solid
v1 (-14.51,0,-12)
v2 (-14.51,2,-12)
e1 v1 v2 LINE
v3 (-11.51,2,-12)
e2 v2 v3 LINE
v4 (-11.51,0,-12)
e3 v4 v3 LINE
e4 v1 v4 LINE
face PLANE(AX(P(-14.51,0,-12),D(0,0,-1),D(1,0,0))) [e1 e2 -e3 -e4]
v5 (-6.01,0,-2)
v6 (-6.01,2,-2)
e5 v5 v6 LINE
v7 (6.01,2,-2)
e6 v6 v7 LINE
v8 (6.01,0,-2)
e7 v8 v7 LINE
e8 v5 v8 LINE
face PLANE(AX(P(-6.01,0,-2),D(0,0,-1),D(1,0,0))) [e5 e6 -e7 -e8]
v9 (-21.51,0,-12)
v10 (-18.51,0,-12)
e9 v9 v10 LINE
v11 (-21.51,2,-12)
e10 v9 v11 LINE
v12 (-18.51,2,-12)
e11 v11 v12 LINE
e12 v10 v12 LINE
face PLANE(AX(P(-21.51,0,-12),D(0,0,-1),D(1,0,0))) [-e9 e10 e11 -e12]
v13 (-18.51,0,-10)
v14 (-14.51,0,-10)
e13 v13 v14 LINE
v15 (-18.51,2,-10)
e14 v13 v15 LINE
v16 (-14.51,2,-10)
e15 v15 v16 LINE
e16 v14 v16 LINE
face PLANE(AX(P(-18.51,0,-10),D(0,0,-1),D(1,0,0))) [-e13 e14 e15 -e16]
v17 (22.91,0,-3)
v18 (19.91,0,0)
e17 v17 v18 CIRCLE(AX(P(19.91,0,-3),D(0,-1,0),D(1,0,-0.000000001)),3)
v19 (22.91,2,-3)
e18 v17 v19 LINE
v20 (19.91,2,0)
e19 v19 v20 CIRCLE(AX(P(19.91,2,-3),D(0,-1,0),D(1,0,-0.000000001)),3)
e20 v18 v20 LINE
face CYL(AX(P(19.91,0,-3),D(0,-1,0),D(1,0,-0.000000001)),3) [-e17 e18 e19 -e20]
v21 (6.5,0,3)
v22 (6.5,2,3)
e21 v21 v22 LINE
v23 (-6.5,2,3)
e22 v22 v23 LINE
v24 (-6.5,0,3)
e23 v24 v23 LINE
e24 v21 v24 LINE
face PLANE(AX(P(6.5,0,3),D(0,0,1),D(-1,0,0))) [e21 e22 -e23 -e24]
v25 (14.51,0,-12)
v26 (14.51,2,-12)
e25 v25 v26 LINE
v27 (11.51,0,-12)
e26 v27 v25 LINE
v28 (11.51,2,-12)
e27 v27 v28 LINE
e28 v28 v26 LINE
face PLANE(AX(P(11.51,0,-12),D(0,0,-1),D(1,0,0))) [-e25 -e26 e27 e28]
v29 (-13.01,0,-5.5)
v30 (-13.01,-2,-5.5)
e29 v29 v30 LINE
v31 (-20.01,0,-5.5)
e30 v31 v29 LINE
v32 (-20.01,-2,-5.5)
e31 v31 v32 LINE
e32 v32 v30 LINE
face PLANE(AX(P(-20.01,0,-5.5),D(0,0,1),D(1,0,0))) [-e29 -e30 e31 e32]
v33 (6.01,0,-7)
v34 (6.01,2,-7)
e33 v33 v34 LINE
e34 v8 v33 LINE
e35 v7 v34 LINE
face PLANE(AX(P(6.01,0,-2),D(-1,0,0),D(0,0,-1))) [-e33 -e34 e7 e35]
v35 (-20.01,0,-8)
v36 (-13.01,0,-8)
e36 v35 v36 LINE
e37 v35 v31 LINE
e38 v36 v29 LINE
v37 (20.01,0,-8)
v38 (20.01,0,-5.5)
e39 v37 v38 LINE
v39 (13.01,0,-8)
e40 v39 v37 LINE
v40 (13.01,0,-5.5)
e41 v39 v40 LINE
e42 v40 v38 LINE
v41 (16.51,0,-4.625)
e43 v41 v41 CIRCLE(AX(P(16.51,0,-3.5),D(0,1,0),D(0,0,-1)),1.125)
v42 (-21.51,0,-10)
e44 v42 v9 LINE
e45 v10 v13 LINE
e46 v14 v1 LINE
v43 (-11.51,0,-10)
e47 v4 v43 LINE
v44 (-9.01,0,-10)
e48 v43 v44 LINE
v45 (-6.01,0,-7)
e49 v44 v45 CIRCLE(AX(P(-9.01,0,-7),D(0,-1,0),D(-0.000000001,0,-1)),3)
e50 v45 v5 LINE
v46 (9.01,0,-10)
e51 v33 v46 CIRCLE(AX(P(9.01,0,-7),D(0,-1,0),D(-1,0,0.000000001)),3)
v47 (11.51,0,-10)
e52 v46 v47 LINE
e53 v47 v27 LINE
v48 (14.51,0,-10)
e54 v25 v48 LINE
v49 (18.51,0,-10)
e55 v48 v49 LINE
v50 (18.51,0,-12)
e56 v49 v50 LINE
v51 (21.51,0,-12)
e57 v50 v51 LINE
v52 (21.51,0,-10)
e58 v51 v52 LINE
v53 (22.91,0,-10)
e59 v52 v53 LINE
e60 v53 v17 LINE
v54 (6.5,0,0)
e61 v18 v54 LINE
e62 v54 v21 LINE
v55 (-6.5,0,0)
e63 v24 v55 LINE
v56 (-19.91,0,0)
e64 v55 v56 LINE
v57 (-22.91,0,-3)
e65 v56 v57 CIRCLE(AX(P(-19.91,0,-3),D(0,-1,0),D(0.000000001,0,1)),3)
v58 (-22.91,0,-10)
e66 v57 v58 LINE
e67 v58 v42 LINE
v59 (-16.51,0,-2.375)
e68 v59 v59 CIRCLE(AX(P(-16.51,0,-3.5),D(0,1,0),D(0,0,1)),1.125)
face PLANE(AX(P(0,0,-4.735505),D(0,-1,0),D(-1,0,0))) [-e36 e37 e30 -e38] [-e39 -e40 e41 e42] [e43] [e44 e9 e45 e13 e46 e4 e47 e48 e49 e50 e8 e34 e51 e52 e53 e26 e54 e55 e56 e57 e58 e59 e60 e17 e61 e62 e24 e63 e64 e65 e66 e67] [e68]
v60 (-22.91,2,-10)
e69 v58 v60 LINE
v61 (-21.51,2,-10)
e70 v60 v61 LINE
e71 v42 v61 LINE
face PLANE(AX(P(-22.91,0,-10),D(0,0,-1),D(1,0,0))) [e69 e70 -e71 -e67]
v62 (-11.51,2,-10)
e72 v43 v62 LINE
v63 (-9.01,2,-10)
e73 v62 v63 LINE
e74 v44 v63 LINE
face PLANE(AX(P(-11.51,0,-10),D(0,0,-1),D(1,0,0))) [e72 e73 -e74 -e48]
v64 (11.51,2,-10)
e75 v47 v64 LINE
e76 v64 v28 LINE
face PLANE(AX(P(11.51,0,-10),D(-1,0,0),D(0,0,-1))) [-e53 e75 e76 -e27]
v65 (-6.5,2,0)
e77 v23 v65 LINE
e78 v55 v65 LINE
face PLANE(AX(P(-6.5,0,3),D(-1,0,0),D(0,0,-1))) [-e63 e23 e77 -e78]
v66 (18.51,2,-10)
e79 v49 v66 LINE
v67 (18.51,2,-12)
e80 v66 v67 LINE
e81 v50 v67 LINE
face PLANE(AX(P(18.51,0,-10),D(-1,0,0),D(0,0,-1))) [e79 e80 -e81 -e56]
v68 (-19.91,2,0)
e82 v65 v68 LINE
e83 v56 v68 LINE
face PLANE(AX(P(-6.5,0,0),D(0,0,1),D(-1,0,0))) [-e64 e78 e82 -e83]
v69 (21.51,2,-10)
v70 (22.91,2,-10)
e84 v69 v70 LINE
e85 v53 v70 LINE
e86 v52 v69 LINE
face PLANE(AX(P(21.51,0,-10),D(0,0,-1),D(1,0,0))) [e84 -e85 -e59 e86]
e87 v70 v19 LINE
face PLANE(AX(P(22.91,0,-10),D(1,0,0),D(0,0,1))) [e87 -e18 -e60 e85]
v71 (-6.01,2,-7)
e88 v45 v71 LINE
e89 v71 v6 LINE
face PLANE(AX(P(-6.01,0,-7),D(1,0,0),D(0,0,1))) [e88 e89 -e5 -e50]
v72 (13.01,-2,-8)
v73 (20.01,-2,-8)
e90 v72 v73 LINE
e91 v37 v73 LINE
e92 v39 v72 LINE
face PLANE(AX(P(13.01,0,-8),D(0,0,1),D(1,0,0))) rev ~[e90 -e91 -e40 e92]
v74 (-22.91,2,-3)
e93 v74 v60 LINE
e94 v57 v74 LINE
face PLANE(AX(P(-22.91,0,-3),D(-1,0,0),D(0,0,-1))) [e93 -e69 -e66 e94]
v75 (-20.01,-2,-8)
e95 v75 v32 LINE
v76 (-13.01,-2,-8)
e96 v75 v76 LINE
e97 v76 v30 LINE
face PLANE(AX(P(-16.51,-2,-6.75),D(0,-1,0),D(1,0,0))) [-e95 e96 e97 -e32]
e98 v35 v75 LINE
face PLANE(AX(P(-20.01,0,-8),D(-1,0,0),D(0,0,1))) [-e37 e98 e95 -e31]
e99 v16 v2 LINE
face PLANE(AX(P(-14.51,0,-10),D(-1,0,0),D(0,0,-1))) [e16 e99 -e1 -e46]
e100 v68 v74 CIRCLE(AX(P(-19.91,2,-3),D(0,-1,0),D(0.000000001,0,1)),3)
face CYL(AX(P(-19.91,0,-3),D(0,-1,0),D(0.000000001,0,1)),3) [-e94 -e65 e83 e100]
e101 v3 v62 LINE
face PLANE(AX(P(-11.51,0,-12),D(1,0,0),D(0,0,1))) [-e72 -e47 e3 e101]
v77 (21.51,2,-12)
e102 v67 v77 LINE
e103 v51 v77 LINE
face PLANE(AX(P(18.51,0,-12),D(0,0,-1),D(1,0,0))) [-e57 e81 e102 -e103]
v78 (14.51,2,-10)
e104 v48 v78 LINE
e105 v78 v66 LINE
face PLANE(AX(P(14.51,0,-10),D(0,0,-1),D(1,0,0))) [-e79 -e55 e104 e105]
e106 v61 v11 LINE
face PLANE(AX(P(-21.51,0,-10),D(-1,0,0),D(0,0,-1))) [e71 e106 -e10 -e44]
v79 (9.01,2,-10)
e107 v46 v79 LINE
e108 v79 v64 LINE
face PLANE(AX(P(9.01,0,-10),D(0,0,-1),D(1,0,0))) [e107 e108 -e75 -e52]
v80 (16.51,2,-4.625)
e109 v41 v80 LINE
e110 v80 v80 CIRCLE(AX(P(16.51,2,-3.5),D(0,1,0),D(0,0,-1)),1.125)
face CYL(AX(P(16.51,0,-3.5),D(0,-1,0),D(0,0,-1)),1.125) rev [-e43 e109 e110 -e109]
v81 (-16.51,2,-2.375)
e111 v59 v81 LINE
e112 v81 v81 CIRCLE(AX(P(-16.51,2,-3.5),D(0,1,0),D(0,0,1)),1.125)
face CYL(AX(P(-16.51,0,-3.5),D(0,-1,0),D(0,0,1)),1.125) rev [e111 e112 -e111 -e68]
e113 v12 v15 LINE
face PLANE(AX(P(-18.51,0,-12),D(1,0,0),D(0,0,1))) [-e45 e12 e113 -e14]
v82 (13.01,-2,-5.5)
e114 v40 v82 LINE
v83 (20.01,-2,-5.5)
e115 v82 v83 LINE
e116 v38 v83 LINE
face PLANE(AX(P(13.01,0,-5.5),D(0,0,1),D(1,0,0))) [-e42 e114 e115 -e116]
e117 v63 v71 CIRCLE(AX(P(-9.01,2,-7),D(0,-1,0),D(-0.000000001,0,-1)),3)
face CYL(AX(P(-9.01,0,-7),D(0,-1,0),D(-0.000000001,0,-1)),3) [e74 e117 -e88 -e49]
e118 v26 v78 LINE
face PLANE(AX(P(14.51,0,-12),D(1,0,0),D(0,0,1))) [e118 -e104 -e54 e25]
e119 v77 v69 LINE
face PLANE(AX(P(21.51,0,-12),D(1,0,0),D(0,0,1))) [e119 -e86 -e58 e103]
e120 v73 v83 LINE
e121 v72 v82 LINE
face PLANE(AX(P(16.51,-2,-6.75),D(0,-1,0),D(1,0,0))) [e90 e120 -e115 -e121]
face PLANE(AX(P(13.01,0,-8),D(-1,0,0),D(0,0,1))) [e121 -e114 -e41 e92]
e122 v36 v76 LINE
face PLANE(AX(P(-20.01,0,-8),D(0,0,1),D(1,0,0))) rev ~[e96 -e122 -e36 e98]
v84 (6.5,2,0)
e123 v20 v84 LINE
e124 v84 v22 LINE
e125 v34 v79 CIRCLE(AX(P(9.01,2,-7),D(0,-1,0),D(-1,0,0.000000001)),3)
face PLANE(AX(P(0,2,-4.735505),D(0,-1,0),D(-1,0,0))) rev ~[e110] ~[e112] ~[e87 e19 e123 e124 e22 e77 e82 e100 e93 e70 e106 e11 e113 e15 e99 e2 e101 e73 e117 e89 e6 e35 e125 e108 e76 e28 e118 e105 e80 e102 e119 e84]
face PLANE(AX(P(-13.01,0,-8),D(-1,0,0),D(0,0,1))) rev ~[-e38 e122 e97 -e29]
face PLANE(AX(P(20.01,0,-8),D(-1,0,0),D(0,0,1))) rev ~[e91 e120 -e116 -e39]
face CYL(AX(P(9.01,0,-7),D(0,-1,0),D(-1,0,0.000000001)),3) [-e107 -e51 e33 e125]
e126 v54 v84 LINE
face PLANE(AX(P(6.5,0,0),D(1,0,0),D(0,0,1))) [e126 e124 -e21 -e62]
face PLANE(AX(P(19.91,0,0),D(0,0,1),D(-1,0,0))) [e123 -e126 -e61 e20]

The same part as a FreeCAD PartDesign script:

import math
import FreeCAD as App
import Part
import Sketcher
from FreeCAD import Vector


def add_polygon(sketch, points):
    """Adds a closed chain of lines whose ends are joined by coincident constraints."""
    first, n = sketch.GeometryCount, len(points)
    for a, b in zip(points, points[1:] + points[:1]):
        sketch.addGeometry(Part.LineSegment(App.Vector(*a, 0), App.Vector(*b, 0)), False)
    for i in range(n):
        sketch.addConstraint(Sketcher.Constraint("Coincident", first + i, 2, first + (i + 1) % n, 1))

doc = App.newDocument("Part")
params = doc.addObject("Spreadsheet::Sheet", "Params")
for row, (alias, value) in enumerate([
    ("sketch1_radius", "3 mm"),
    ("sketch1_diameter", "2.25 mm"),
    ("sketch1_width", "3 mm"),
    ("sketch1_width2", "4 mm"),
    ("sketch1_width3", "13 mm"),
    ("pad1_length", "2 mm"),
    ("sketch2_width", "7 mm"),
    ("sketch2_height", "2.5 mm"),
    ("pad2_length", "2 mm"),
], start=1):
    params.set(f"A{row}", alias)
    params.set(f"B{row}", "=" + value)
    params.setAlias(f"B{row}", alias)

body = doc.addObject("PartDesign::Body", "Body")

# Sketch on XZ plane
sketch1 = body.newObject("Sketcher::SketchObject", "Sketch")
sketch1.AttachmentSupport = (doc.getObject("XZ_Plane"), [""])
sketch1.MapMode = "FlatFace"
sketch1.addGeometry([
    Part.LineSegment(Vector(6.5, 0, 0), Vector(19.91, 0, 0)),  # 0
    Part.ArcOfCircle(Part.Circle(Vector(19.91, -3, 0), Vector(0, 0, 1), 3), math.radians(0), math.radians(90)),  # 1
    Part.LineSegment(Vector(22.91, -3, 0), Vector(22.91, -10, 0)),  # 2
    Part.LineSegment(Vector(22.91, -10, 0), Vector(21.51, -10, 0)),  # 3
    Part.LineSegment(Vector(21.51, -10, 0), Vector(21.51, -12, 0)),  # 4
    Part.LineSegment(Vector(21.51, -12, 0), Vector(18.51, -12, 0)),  # 5
    Part.LineSegment(Vector(18.51, -12, 0), Vector(18.51, -10, 0)),  # 6
    Part.LineSegment(Vector(18.51, -10, 0), Vector(14.51, -10, 0)),  # 7
    Part.LineSegment(Vector(14.51, -10, 0), Vector(14.51, -12, 0)),  # 8
    Part.LineSegment(Vector(14.51, -12, 0), Vector(11.51, -12, 0)),  # 9
    Part.LineSegment(Vector(11.51, -12, 0), Vector(11.51, -10, 0)),  # 10
    Part.LineSegment(Vector(11.51, -10, 0), Vector(9.01, -10, 0)),  # 11
    Part.ArcOfCircle(Part.Circle(Vector(9.01, -7, 0), Vector(0, 0, 1), 3), math.radians(180), math.radians(270)),  # 12
    Part.LineSegment(Vector(6.01, -7, 0), Vector(6.01, -2, 0)),  # 13
    Part.LineSegment(Vector(6.01, -2, 0), Vector(-6.01, -2, 0)),  # 14
    Part.LineSegment(Vector(-6.01, -2, 0), Vector(-6.01, -7, 0)),  # 15
    Part.ArcOfCircle(Part.Circle(Vector(-9.01, -7, 0), Vector(0, 0, 1), 3), math.radians(-90), math.radians(0)),  # 16
    Part.LineSegment(Vector(-9.01, -10, 0), Vector(-11.51, -10, 0)),  # 17
    Part.LineSegment(Vector(-11.51, -10, 0), Vector(-11.51, -12, 0)),  # 18
    Part.LineSegment(Vector(-11.51, -12, 0), Vector(-14.51, -12, 0)),  # 19
    Part.LineSegment(Vector(-14.51, -12, 0), Vector(-14.51, -10, 0)),  # 20
    Part.LineSegment(Vector(-14.51, -10, 0), Vector(-18.51, -10, 0)),  # 21
    Part.LineSegment(Vector(-18.51, -10, 0), Vector(-18.51, -12, 0)),  # 22
    Part.LineSegment(Vector(-18.51, -12, 0), Vector(-21.51, -12, 0)),  # 23
    Part.LineSegment(Vector(-21.51, -12, 0), Vector(-21.51, -10, 0)),  # 24
    Part.LineSegment(Vector(-21.51, -10, 0), Vector(-22.91, -10, 0)),  # 25
    Part.LineSegment(Vector(-22.91, -10, 0), Vector(-22.91, -3, 0)),  # 26
    Part.ArcOfCircle(Part.Circle(Vector(-19.91, -3, 0), Vector(0, 0, 1), 3), math.radians(90), math.radians(180)),  # 27
    Part.LineSegment(Vector(-19.91, 0, 0), Vector(-6.5, 0, 0)),  # 28
    Part.LineSegment(Vector(-6.5, 0, 0), Vector(-6.5, 3, 0)),  # 29
    Part.LineSegment(Vector(-6.5, 3, 0), Vector(6.5, 3, 0)),  # 30
    Part.LineSegment(Vector(6.5, 3, 0), Vector(6.5, 0, 0)),  # 31
    Part.Circle(Vector(16.51, -3.5, 0), Vector(0, 0, 1), 1.125),  # 32
    Part.Circle(Vector(-16.51, -3.5, 0), Vector(0, 0, 1), 1.125),  # 33
], False)
sketch1.addConstraint([
    Sketcher.Constraint("Tangent", 0, 2, 1, 2),
    Sketcher.Constraint("Tangent", 1, 1, 2, 1),
    Sketcher.Constraint("Coincident", 2, 2, 3, 1),
    Sketcher.Constraint("Coincident", 3, 2, 4, 1),
    Sketcher.Constraint("Coincident", 4, 2, 5, 1),
    Sketcher.Constraint("Coincident", 5, 2, 6, 1),
    Sketcher.Constraint("Coincident", 6, 2, 7, 1),
    Sketcher.Constraint("Coincident", 7, 2, 8, 1),
    Sketcher.Constraint("Coincident", 8, 2, 9, 1),
    Sketcher.Constraint("Coincident", 9, 2, 10, 1),
    Sketcher.Constraint("Coincident", 10, 2, 11, 1),
    Sketcher.Constraint("Tangent", 11, 2, 12, 2),
    Sketcher.Constraint("Tangent", 12, 1, 13, 1),
    Sketcher.Constraint("Coincident", 13, 2, 14, 1),
    Sketcher.Constraint("Coincident", 14, 2, 15, 1),
    Sketcher.Constraint("Tangent", 15, 2, 16, 2),
    Sketcher.Constraint("Tangent", 16, 1, 17, 1),
    Sketcher.Constraint("Coincident", 17, 2, 18, 1),
    Sketcher.Constraint("Coincident", 18, 2, 19, 1),
    Sketcher.Constraint("Coincident", 19, 2, 20, 1),
    Sketcher.Constraint("Coincident", 20, 2, 21, 1),
    Sketcher.Constraint("Coincident", 21, 2, 22, 1),
    Sketcher.Constraint("Coincident", 22, 2, 23, 1),
    Sketcher.Constraint("Coincident", 23, 2, 24, 1),
    Sketcher.Constraint("Coincident", 24, 2, 25, 1),
    Sketcher.Constraint("Coincident", 25, 2, 26, 1),
    Sketcher.Constraint("Tangent", 26, 2, 27, 2),
    Sketcher.Constraint("Tangent", 27, 1, 28, 1),
    Sketcher.Constraint("Coincident", 28, 2, 29, 1),
    Sketcher.Constraint("Coincident", 29, 2, 30, 1),
    Sketcher.Constraint("Coincident", 30, 2, 31, 1),
    Sketcher.Constraint("Coincident", 31, 2, 0, 1),
    Sketcher.Constraint("Horizontal", 0),
    Sketcher.Constraint("Vertical", 2),
    Sketcher.Constraint("Horizontal", 3),
    Sketcher.Constraint("Vertical", 4),
    Sketcher.Constraint("Horizontal", 5),
    Sketcher.Constraint("Vertical", 6),
    Sketcher.Constraint("Horizontal", 7),
    Sketcher.Constraint("Vertical", 8),
    Sketcher.Constraint("Horizontal", 9),
    Sketcher.Constraint("Vertical", 10),
    Sketcher.Constraint("Horizontal", 11),
    Sketcher.Constraint("Vertical", 13),
    Sketcher.Constraint("Horizontal", 14),
    Sketcher.Constraint("Vertical", 15),
    Sketcher.Constraint("Horizontal", 17),
    Sketcher.Constraint("Vertical", 18),
    Sketcher.Constraint("Horizontal", 19),
    Sketcher.Constraint("Vertical", 20),
    Sketcher.Constraint("Horizontal", 21),
    Sketcher.Constraint("Vertical", 22),
    Sketcher.Constraint("Horizontal", 23),
    Sketcher.Constraint("Vertical", 24),
    Sketcher.Constraint("Horizontal", 25),
    Sketcher.Constraint("Vertical", 26),
    Sketcher.Constraint("Horizontal", 28),
    Sketcher.Constraint("Vertical", 29),
    Sketcher.Constraint("Horizontal", 30),
    Sketcher.Constraint("Vertical", 31),
    Sketcher.Constraint("Equal", 1, 12),
    Sketcher.Constraint("Equal", 12, 16),
    Sketcher.Constraint("Equal", 16, 27),
    Sketcher.Constraint("Equal", 32, 33),
    Sketcher.Constraint("Symmetric", 0, 2, 27, 1, -1, 1),
    Sketcher.Constraint("Symmetric", 12, 3, 16, 3, -2),
    Sketcher.Constraint("Symmetric", 32, 3, 33, 3, -2),
    Sketcher.Constraint("Symmetric", 9, 2, 18, 2, -2),
    Sketcher.Constraint("Symmetric", 7, 2, 20, 2, -2),
    Sketcher.Constraint("Symmetric", 5, 2, 22, 2, -2),
    Sketcher.Constraint("Symmetric", 3, 2, 24, 2, -2),
    Sketcher.Constraint("Symmetric", 28, 2, 31, 2, -2),
    Sketcher.Constraint("Horizontal", 3, 2, 6, 2),
    Sketcher.Constraint("Horizontal", 5, 2, 8, 2),
    Sketcher.Constraint("Horizontal", 7, 2, 10, 2),
    Sketcher.Constraint("Equal", 5, 9),
    Sketcher.Constraint("Equal", 23, 29),
    Sketcher.Constraint("Radius", 1, 3.0),
    Sketcher.Constraint("Diameter", 32, 2.25),
    Sketcher.Constraint("DistanceX", 5, 2, 5, 1, 3.0),
    Sketcher.Constraint("DistanceX", 7, 2, 7, 1, 4.0),
    Sketcher.Constraint("DistanceX", 30, 1, 30, 2, 13.0),
    Sketcher.Constraint("DistanceY", 2, 2, 2, 1, 7.0),
    Sketcher.Constraint("DistanceY", 4, 2, 4, 1, 2.0),
    Sketcher.Constraint("DistanceY", 13, 1, 13, 2, 5.0),
    Sketcher.Constraint("DistanceX", 3, 2, 3, 1, 1.4),
    Sketcher.Constraint("DistanceX", 11, 2, 11, 1, 2.5),
    Sketcher.Constraint("DistanceX", 32, 3, 3, 2, 5.0),
    Sketcher.Constraint("DistanceX", 0, 1, 0, 2, 13.41),
    Sketcher.Constraint("DistanceY", 32, 3, -1, 1, 3.5),
])
sketch1.setExpression("Constraints[77]", "Params.sketch1_radius")
sketch1.setExpression("Constraints[78]", "Params.sketch1_diameter")
sketch1.setExpression("Constraints[79]", "Params.sketch1_width")
sketch1.setExpression("Constraints[80]", "Params.sketch1_width2")
sketch1.setExpression("Constraints[81]", "Params.sketch1_width3")
pad1 = body.newObject("PartDesign::Pad", "Pad")
pad1.Profile = sketch1
pad1.setExpression("Length", "Params.pad1_length")
pad1.Reversed = True

# Sketch on XZ plane
sketch2 = body.newObject("Sketcher::SketchObject", "Sketch001")
sketch2.AttachmentSupport = (doc.getObject("XZ_Plane"), [""])
sketch2.MapMode = "FlatFace"
add_polygon(sketch2, [(-20.01, -5.5), (-20.01, -8), (-13.01, -8), (-13.01, -5.5)])  # lines 0-3
add_polygon(sketch2, [(13.01, -5.5), (13.01, -8), (20.01, -8), (20.01, -5.5)])  # lines 4-7
sketch2.addConstraint([
    Sketcher.Constraint("Vertical", 0),
    Sketcher.Constraint("Horizontal", 1),
    Sketcher.Constraint("Vertical", 2),
    Sketcher.Constraint("Horizontal", 3),
    Sketcher.Constraint("Vertical", 4),
    Sketcher.Constraint("Horizontal", 5),
    Sketcher.Constraint("Vertical", 6),
    Sketcher.Constraint("Horizontal", 7),
    Sketcher.Constraint("Symmetric", 1, 2, 4, 2, -2),
    Sketcher.Constraint("Symmetric", 3, 2, 6, 2, -2),
    Sketcher.Constraint("DistanceX", 1, 1, 1, 2, 7.0),
    Sketcher.Constraint("DistanceY", 0, 2, 0, 1, 2.5),
    Sketcher.Constraint("DistanceY", 0, 2, -1, 1, 8.0),
    Sketcher.Constraint("DistanceX", 0, 2, -1, 1, 20.01),
])
sketch2.setExpression("Constraints[18]", "Params.sketch2_width")
sketch2.setExpression("Constraints[19]", "Params.sketch2_height")
pad2 = body.newObject("PartDesign::Pad", "Pad001")
pad2.Profile = sketch2
pad2.setExpression("Length", "Params.pad2_length")

doc.recompute()
